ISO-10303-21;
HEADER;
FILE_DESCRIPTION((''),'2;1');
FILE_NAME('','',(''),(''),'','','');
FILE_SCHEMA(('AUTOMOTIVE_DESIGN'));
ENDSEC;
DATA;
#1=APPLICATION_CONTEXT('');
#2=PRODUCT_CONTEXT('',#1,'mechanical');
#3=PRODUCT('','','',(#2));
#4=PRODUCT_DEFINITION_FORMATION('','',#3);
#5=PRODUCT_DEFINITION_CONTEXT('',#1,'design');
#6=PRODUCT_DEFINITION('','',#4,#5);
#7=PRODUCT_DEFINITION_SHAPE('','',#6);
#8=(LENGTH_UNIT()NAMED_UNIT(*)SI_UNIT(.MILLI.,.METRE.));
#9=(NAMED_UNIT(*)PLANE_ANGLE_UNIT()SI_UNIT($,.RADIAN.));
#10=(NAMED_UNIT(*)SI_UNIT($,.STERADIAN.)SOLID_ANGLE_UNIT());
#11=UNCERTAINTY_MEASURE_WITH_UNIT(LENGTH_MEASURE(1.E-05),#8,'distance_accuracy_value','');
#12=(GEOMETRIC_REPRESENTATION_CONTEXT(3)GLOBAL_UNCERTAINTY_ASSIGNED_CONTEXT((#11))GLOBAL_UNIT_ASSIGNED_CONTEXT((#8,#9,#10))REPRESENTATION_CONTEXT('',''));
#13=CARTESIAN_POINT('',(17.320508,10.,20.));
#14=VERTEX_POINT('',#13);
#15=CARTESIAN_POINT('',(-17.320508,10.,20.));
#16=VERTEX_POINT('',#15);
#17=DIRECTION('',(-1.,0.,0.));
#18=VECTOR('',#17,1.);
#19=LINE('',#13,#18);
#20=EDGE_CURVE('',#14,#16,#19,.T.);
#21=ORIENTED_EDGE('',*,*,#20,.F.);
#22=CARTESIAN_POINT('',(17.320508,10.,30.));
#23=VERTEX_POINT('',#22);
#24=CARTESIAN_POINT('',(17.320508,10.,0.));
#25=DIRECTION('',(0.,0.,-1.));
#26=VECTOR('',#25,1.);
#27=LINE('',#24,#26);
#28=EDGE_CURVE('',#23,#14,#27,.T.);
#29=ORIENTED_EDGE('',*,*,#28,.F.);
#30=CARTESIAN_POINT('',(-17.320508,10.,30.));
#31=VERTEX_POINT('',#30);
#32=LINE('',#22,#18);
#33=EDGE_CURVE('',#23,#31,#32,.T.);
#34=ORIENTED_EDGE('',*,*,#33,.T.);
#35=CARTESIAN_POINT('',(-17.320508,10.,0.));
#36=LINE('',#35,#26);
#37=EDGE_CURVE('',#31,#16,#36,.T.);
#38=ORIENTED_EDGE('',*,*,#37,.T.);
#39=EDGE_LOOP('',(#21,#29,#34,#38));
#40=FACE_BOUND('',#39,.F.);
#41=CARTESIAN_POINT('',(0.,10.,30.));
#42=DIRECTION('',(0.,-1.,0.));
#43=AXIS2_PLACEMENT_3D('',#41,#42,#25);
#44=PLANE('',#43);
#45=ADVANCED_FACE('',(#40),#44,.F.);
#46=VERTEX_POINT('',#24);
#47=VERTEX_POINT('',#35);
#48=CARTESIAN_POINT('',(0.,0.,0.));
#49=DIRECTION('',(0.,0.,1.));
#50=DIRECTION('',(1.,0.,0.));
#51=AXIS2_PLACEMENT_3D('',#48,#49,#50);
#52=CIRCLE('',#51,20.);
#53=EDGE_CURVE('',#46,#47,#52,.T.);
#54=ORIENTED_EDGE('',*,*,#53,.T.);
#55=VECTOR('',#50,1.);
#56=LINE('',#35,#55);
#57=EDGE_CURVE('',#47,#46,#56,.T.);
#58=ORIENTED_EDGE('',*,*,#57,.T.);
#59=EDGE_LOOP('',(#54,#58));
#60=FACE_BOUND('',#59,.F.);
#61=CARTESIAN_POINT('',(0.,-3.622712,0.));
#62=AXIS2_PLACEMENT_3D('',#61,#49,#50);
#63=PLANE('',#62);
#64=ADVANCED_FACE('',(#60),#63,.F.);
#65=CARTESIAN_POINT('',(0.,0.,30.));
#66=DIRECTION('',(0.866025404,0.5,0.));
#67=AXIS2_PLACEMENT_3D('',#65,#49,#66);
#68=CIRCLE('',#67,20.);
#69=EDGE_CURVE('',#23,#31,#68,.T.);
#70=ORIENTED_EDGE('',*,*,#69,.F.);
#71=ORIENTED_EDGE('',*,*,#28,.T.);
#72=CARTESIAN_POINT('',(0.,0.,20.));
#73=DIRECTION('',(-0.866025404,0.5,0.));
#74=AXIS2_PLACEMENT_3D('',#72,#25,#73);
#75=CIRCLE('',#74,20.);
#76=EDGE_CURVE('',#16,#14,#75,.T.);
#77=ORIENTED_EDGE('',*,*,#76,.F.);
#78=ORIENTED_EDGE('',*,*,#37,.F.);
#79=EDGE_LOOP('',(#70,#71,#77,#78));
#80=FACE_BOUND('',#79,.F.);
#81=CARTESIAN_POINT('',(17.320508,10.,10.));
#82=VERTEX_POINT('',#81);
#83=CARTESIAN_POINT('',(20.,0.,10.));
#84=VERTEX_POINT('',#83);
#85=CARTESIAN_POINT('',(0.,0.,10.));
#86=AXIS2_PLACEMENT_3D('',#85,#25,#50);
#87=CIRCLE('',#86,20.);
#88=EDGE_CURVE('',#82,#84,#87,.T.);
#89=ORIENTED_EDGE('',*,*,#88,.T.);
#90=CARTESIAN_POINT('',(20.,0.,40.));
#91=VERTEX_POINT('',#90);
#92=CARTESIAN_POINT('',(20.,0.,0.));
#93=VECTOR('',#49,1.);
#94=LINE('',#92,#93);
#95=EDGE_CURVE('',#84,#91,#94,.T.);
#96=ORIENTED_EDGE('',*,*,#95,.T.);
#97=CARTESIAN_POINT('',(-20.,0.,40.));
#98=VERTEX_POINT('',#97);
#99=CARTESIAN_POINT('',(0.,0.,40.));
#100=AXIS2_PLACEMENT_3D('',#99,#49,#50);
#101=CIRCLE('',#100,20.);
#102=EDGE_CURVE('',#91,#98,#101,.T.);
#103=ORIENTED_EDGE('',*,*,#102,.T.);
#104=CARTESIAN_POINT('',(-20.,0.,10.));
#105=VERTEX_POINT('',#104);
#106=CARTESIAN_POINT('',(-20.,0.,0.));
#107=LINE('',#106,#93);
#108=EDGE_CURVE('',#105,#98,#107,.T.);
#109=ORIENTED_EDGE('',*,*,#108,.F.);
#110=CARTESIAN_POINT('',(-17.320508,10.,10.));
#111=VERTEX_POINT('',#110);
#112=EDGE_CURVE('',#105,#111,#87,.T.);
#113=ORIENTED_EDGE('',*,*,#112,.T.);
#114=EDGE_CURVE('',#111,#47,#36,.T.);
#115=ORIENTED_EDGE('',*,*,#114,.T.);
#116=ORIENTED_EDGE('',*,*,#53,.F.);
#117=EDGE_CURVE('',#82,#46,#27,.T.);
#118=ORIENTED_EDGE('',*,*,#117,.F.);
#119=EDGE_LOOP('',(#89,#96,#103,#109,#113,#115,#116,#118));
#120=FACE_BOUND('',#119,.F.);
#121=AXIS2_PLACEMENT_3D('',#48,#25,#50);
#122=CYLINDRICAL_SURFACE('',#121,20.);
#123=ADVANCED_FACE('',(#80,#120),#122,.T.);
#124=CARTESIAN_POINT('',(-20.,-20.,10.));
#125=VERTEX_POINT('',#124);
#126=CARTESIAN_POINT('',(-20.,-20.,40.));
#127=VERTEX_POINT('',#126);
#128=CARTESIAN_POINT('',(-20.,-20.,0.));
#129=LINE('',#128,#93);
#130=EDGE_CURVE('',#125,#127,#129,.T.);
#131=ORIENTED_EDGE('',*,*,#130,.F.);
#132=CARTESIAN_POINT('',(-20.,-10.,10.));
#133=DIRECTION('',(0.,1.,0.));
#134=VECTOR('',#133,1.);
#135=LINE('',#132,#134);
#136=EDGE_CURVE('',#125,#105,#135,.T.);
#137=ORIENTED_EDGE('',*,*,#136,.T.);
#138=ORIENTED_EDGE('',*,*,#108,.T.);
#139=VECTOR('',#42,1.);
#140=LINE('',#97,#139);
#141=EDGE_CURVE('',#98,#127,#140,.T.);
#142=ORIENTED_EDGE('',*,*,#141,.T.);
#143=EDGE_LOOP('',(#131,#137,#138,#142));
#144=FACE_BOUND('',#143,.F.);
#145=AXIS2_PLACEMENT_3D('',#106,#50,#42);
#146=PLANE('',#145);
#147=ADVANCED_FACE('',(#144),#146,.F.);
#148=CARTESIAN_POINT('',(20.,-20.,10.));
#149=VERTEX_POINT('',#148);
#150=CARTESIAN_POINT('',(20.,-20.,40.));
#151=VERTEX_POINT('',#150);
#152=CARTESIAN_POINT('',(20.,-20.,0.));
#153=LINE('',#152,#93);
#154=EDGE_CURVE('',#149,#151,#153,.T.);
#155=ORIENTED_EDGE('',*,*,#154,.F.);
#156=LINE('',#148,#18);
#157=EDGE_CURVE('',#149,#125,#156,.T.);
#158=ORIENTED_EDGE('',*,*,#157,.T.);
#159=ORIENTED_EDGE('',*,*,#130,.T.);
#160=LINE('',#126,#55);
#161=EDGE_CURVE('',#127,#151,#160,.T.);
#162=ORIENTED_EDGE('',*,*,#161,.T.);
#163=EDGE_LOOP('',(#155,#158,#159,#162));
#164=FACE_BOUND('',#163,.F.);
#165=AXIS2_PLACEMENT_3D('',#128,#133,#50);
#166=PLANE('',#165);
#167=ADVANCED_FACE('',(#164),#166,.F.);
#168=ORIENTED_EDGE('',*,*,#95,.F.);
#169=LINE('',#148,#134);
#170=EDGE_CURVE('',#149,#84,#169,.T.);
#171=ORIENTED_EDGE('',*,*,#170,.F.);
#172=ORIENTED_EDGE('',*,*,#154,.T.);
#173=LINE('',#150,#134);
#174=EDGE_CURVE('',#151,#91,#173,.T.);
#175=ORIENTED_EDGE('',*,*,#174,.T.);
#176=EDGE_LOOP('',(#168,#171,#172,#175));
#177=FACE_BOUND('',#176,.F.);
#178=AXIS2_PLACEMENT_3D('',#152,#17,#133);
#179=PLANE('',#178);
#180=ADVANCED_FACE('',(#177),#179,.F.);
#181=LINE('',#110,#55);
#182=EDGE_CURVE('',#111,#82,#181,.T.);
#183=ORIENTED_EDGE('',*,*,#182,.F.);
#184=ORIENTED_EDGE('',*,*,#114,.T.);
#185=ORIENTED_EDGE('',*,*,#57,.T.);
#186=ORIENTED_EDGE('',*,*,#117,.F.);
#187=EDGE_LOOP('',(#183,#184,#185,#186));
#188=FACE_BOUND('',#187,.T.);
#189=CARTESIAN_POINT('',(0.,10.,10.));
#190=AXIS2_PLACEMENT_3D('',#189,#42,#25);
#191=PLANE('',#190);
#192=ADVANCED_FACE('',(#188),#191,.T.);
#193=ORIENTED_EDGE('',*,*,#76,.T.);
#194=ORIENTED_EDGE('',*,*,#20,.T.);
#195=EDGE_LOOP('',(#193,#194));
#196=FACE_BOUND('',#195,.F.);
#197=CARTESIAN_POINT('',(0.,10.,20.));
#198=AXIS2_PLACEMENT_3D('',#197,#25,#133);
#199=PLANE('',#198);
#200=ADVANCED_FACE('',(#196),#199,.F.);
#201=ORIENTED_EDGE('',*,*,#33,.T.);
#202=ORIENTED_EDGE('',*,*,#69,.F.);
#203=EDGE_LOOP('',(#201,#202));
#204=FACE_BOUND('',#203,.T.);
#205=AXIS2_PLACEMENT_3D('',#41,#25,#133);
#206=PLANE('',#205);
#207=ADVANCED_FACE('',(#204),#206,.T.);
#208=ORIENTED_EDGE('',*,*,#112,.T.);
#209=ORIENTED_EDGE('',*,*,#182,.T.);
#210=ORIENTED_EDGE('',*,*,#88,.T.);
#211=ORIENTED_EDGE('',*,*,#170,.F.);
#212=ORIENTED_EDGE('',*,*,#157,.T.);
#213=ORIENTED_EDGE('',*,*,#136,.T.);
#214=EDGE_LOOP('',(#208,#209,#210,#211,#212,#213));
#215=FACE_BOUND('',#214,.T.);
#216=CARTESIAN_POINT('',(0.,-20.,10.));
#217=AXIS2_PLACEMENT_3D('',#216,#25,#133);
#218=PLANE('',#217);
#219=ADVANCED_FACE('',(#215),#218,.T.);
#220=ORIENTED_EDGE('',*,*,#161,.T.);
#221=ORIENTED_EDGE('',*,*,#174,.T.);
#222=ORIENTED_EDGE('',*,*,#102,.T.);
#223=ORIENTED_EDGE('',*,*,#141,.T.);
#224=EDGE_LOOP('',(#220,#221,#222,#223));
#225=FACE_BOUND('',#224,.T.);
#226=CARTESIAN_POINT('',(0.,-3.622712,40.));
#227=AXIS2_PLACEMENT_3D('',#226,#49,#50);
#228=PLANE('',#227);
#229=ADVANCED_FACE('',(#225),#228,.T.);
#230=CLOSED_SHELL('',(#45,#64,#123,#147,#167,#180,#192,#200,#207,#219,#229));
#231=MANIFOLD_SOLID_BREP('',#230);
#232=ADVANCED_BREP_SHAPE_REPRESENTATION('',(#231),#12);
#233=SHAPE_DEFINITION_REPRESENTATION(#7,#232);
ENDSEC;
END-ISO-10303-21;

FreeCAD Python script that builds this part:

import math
import FreeCAD as App
import Part
import Sketcher


def add_polygon(sketch, points):
    """Adds a closed chain of lines whose ends are joined by coincident constraints."""
    first, n = sketch.GeometryCount, len(points)
    for a, b in zip(points, points[1:] + points[:1]):
        sketch.addGeometry(Part.LineSegment(App.Vector(*a, 0), App.Vector(*b, 0)), False)
    for i in range(n):
        sketch.addConstraint(Sketcher.Constraint("Coincident", first + i, 2, first + (i + 1) % n, 1))

doc = App.newDocument("Part")
body = doc.addObject("PartDesign::Body", "Body")

# Sketch on XY plane
sketch1 = doc.addObject("Sketcher::SketchObject", "Sketch")
body.addObject(sketch1)
sketch1.AttachmentSupport = (doc.XY_Plane, [""])
sketch1.MapMode = "FlatFace"
sketch1.addGeometry(Part.LineSegment(App.Vector(-20, 0, 0), App.Vector(-20, -20, 0)), False)
sketch1.addGeometry(Part.LineSegment(App.Vector(-20, -20, 0), App.Vector(20, -20, 0)), False)
sketch1.addGeometry(Part.LineSegment(App.Vector(20, -20, 0), App.Vector(20, 0, 0)), False)
sketch1.addGeometry(Part.ArcOfCircle(Part.Circle(App.Vector(0, 0, 0), App.Vector(0, 0, 1), 20), math.radians(0), math.radians(180)), False)
sketch1.addConstraint(Sketcher.Constraint("Coincident", 0, 2, 1, 1))
sketch1.addConstraint(Sketcher.Constraint("Coincident", 1, 2, 2, 1))
sketch1.addConstraint(Sketcher.Constraint("Tangent", 2, 2, 3, 1))
sketch1.addConstraint(Sketcher.Constraint("Tangent", 3, 2, 0, 1))
sketch1.addConstraint(Sketcher.Constraint("Vertical", 0))
sketch1.addConstraint(Sketcher.Constraint("Horizontal", 1))
sketch1.addConstraint(Sketcher.Constraint("Vertical", 2))
sketch1.addConstraint(Sketcher.Constraint("Coincident", 3, 3, -1, 1))
sketch1.addConstraint(Sketcher.Constraint("Radius", 3, 20.0))
sketch1.addConstraint(Sketcher.Constraint("DistanceY", 0, 2, 0, 1, 20.0))
pad1 = doc.addObject("PartDesign::Pad", "Pad")
body.addObject(pad1)
pad1.Profile = sketch1
pad1.Length = 40

# Sketch on YZ plane
sketch2 = doc.addObject("Sketcher::SketchObject", "Sketch001")
body.addObject(sketch2)
sketch2.AttachmentSupport = (doc.YZ_Plane, [""])
sketch2.MapMode = "FlatFace"
add_polygon(sketch2, [(10, 10), (-20, 10), (-20, 0), (10, 0)])  # lines 0-3
add_polygon(sketch2, [(20, 30), (10, 30), (10, 20), (20, 20)])  # lines 4-7
sketch2.addConstraint(Sketcher.Constraint("Horizontal", 0))
sketch2.addConstraint(Sketcher.Constraint("Vertical", 1))
sketch2.addConstraint(Sketcher.Constraint("Horizontal", 2))
sketch2.addConstraint(Sketcher.Constraint("Vertical", 3))
sketch2.addConstraint(Sketcher.Constraint("Horizontal", 4))
sketch2.addConstraint(Sketcher.Constraint("Vertical", 5))
sketch2.addConstraint(Sketcher.Constraint("Horizontal", 6))
sketch2.addConstraint(Sketcher.Constraint("Vertical", 7))
sketch2.addConstraint(Sketcher.Constraint("PointOnObject", 1, 2, -1))
sketch2.addConstraint(Sketcher.Constraint("Vertical", 3, 2, 4, 2))
sketch2.addConstraint(Sketcher.Constraint("Equal", 6, 1))
sketch2.addConstraint(Sketcher.Constraint("Equal", 3, 5))
sketch2.addConstraint(Sketcher.Constraint("DistanceX", 0, 2, 0, 1, 30.0))
sketch2.addConstraint(Sketcher.Constraint("DistanceX", 4, 2, 4, 1, 10.0))
sketch2.addConstraint(Sketcher.Constraint("DistanceX", 0, 2, -1, 1, 20.0))
sketch2.addConstraint(Sketcher.Constraint("DistanceY", -1, 1, 4, 2, 30.0))
pocket1 = doc.addObject("PartDesign::Pocket", "Pocket")
body.addObject(pocket1)
pocket1.Profile = sketch2
pocket1.Type = "ThroughAll"
pocket1.Midplane = True

doc.recompute()
